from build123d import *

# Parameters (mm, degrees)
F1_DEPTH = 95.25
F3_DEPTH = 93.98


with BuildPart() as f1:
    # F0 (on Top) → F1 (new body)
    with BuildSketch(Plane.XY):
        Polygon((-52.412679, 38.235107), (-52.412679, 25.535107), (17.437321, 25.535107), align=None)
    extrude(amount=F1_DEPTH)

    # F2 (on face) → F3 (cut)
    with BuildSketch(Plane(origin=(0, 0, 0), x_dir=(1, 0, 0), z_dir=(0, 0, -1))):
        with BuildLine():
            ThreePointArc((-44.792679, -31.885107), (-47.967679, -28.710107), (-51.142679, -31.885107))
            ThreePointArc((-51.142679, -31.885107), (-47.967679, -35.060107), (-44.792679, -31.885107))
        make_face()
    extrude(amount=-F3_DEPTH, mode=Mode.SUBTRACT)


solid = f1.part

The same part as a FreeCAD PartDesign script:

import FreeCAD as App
import Part
import Sketcher
from FreeCAD import Vector
Q = App.Units.Quantity

doc = App.newDocument("Part")
body = doc.addObject("PartDesign::Body", "Body")

# Sketch on XY plane
sketch1 = body.newObject("Sketcher::SketchObject", "Sketch")
sketch1.AttachmentSupport = (doc.getObject("XY_Plane"), [""])
sketch1.MapMode = "FlatFace"
sketch1.addGeometry(Part.LineSegment(Vector(-52, 38, 0), Vector(-52, 26, 0)), False)
sketch1.addGeometry(Part.LineSegment(Vector(-52, 26, 0), Vector(17, 26, 0)), False)
sketch1.addGeometry(Part.LineSegment(Vector(17, 26, 0), Vector(-52, 38, 0)), False)
sketch1.addConstraint(Sketcher.Constraint("Coincident", 0, 2, 1, 1))
sketch1.addConstraint(Sketcher.Constraint("Coincident", 1, 2, 2, 1))
sketch1.addConstraint(Sketcher.Constraint("Coincident", 2, 2, 0, 1))
sketch1.addConstraint(Sketcher.Constraint("Vertical", 0))
sketch1.addConstraint(Sketcher.Constraint("Horizontal", 1))
sketch1.addConstraint(Sketcher.Constraint("DistanceY", 0, 2, 0, 1, Q("0.5 in")))
sketch1.addConstraint(Sketcher.Constraint("DistanceX", 1, 1, 1, 2, Q("2.75 in")))
sketch1.addConstraint(Sketcher.Constraint("DistanceX", 0, 2, -1, 1, Q("52.412679 mm")))
sketch1.addConstraint(Sketcher.Constraint("DistanceY", -1, 1, 0, 2, Q("25.535107 mm")))
pad1 = body.newObject("PartDesign::Pad", "Pad")
pad1.Profile = sketch1
pad1.Length = Q("3.75 in")

# Sketch on XY plane
sketch2 = body.newObject("Sketcher::SketchObject", "Sketch001")
sketch2.AttachmentSupport = (doc.getObject("XY_Plane"), [""])
sketch2.MapMode = "FlatFace"
sketch2.addGeometry(Part.Circle(Vector(-48, 31.9, 0), Vector(0, 0, 1), 3.2), False)
sketch2.addConstraint(Sketcher.Constraint("Diameter", 0, Q("0.25 in")))
sketch2.addConstraint(Sketcher.Constraint("DistanceX", 0, 3, -1, 1, Q("47.967679 mm")))
sketch2.addConstraint(Sketcher.Constraint("DistanceY", -1, 1, 0, 3, Q("31.885107 mm")))
pocket1 = body.newObject("PartDesign::Pocket", "Pocket")
pocket1.Profile = sketch2
pocket1.Length = Q("3.7 in")
pocket1.Reversed = True

doc.recompute()
